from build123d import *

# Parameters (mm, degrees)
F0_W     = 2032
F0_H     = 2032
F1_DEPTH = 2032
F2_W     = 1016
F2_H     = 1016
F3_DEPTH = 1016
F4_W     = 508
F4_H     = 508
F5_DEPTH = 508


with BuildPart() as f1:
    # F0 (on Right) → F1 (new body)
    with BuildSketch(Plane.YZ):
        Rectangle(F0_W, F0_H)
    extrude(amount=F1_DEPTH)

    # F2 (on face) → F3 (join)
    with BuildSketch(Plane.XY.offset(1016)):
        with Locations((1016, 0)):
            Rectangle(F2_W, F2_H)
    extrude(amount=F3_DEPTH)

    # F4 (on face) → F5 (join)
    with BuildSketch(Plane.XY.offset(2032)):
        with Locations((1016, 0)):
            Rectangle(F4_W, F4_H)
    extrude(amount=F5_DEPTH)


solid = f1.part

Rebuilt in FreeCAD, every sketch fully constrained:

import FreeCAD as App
import Part
import Sketcher
from FreeCAD import Vector
Q = App.Units.Quantity


def add_polygon(sketch, points):
    """Adds a closed chain of lines whose ends are joined by coincident constraints."""
    first, n = sketch.GeometryCount, len(points)
    for a, b in zip(points, points[1:] + points[:1]):
        sketch.addGeometry(Part.LineSegment(App.Vector(*a, 0), App.Vector(*b, 0)), False)
    for i in range(n):
        sketch.addConstraint(Sketcher.Constraint("Coincident", first + i, 2, first + (i + 1) % n, 1))

doc = App.newDocument("Part")
body = doc.addObject("PartDesign::Body", "Body")

sketch1 = doc.addObject("Sketcher::SketchObject", "Sketch")
body.addObject(sketch1)
sketch1.AttachmentSupport = (doc.YZ_Plane, [""])
sketch1.MapMode = "FlatFace"
add_polygon(sketch1, [(-1016, 1016), (-1016, -1016), (1016, -1016), (1016, 1016)])
sketch1.addConstraint([
    Sketcher.Constraint("Vertical", 0),
    Sketcher.Constraint("Horizontal", 1),
    Sketcher.Constraint("Vertical", 2),
    Sketcher.Constraint("Horizontal", 3),
    Sketcher.Constraint("Symmetric", 0, 2, 2, 2, -1, 1),
    Sketcher.Constraint("Equal", 3, 0),
    Sketcher.Constraint("DistanceX", 1, 1, 1, 2, Q("80 in")),
])
pad1 = doc.addObject("PartDesign::Pad", "Pad")
body.addObject(pad1)
pad1.Profile = sketch1
pad1.Length = Q("80 in")

sketch2 = doc.addObject("Sketcher::SketchObject", "Sketch001")
body.addObject(sketch2)
sketch2.AttachmentSupport = (doc.XY_Plane, [""])
sketch2.MapMode = "FlatFace"
sketch2.AttachmentOffset = App.Placement(Vector(0, 0, 40 * 25.4), App.Rotation())
add_polygon(sketch2, [(508, 508), (508, -508), (1524, -508), (1524, 508)])
sketch2.addConstraint([
    Sketcher.Constraint("Vertical", 0),
    Sketcher.Constraint("Horizontal", 1),
    Sketcher.Constraint("Vertical", 2),
    Sketcher.Constraint("Horizontal", 3),
    Sketcher.Constraint("Equal", 3, 0),
    Sketcher.Constraint("DistanceX", 1, 1, 1, 2, Q("40 in")),
    Sketcher.Constraint("DistanceX", -1, 1, 0, 2, Q("20 in")),
    Sketcher.Constraint("DistanceY", 0, 2, -1, 1, Q("20 in")),
])
pad2 = doc.addObject("PartDesign::Pad", "Pad001")
body.addObject(pad2)
pad2.Profile = sketch2
pad2.Length = Q("40 in")

sketch3 = doc.addObject("Sketcher::SketchObject", "Sketch002")
body.addObject(sketch3)
sketch3.AttachmentSupport = (doc.XY_Plane, [""])
sketch3.MapMode = "FlatFace"
sketch3.AttachmentOffset = App.Placement(Vector(0, 0, 80 * 25.4), App.Rotation())
add_polygon(sketch3, [(762, 254), (762, -254), (1270, -254), (1270, 254)])
sketch3.addConstraint([
    Sketcher.Constraint("Vertical", 0),
    Sketcher.Constraint("Horizontal", 1),
    Sketcher.Constraint("Vertical", 2),
    Sketcher.Constraint("Horizontal", 3),
    Sketcher.Constraint("Equal", 3, 0),
    Sketcher.Constraint("DistanceX", 1, 1, 1, 2, Q("20 in")),
    Sketcher.Constraint("DistanceX", -1, 1, 0, 2, Q("30 in")),
    Sketcher.Constraint("DistanceY", 0, 2, -1, 1, Q("10 in")),
])
pad3 = doc.addObject("PartDesign::Pad", "Pad002")
body.addObject(pad3)
pad3.Profile = sketch3
pad3.Length = Q("20 in")

doc.recompute()
